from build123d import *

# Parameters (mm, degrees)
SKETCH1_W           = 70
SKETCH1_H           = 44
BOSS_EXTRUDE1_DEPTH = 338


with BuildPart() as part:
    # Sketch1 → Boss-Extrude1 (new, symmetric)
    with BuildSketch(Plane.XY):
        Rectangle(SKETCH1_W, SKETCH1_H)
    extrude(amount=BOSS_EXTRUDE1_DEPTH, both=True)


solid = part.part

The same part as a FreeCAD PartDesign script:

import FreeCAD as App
import Part
import Sketcher

V = App.Vector
Q = App.Units.Quantity


def add_polygon(sketch, points):
    """Adds a closed chain of lines whose ends are joined by coincident constraints."""
    first, n = sketch.GeometryCount, len(points)
    for a, b in zip(points, points[1:] + points[:1]):
        sketch.addGeometry(Part.LineSegment(App.Vector(*a, 0), App.Vector(*b, 0)), False)
    for i in range(n):
        sketch.addConstraint(Sketcher.Constraint("Coincident", first + i, 2, first + (i + 1) % n, 1))

doc = App.newDocument("Part")
body = doc.addObject("PartDesign::Body", "Body")

# Sketch on XY plane
sketch1 = body.newObject("Sketcher::SketchObject", "Sketch")
sketch1.AttachmentSupport = (doc.getObject("XY_Plane"), [""])
sketch1.MapMode = "FlatFace"
add_polygon(sketch1, [(-35, 22), (-35, -22), (35, -22), (35, 22)])  # lines 0-3
sketch1.addConstraint([
    Sketcher.Constraint("Vertical", 0),
    Sketcher.Constraint("Horizontal", 1),
    Sketcher.Constraint("Vertical", 2),
    Sketcher.Constraint("Horizontal", 3),
    Sketcher.Constraint("Symmetric", 0, 2, 2, 2, -1, 1),
    Sketcher.Constraint("DistanceX", 1, 1, 1, 2, Q("70 mm")),
    Sketcher.Constraint("DistanceY", 0, 2, 0, 1, Q("44 mm")),
])
pad1 = body.newObject("PartDesign::Pad", "Pad")
pad1.Profile = sketch1
pad1.Length = 676
pad1.Midplane = True

doc.recompute()
